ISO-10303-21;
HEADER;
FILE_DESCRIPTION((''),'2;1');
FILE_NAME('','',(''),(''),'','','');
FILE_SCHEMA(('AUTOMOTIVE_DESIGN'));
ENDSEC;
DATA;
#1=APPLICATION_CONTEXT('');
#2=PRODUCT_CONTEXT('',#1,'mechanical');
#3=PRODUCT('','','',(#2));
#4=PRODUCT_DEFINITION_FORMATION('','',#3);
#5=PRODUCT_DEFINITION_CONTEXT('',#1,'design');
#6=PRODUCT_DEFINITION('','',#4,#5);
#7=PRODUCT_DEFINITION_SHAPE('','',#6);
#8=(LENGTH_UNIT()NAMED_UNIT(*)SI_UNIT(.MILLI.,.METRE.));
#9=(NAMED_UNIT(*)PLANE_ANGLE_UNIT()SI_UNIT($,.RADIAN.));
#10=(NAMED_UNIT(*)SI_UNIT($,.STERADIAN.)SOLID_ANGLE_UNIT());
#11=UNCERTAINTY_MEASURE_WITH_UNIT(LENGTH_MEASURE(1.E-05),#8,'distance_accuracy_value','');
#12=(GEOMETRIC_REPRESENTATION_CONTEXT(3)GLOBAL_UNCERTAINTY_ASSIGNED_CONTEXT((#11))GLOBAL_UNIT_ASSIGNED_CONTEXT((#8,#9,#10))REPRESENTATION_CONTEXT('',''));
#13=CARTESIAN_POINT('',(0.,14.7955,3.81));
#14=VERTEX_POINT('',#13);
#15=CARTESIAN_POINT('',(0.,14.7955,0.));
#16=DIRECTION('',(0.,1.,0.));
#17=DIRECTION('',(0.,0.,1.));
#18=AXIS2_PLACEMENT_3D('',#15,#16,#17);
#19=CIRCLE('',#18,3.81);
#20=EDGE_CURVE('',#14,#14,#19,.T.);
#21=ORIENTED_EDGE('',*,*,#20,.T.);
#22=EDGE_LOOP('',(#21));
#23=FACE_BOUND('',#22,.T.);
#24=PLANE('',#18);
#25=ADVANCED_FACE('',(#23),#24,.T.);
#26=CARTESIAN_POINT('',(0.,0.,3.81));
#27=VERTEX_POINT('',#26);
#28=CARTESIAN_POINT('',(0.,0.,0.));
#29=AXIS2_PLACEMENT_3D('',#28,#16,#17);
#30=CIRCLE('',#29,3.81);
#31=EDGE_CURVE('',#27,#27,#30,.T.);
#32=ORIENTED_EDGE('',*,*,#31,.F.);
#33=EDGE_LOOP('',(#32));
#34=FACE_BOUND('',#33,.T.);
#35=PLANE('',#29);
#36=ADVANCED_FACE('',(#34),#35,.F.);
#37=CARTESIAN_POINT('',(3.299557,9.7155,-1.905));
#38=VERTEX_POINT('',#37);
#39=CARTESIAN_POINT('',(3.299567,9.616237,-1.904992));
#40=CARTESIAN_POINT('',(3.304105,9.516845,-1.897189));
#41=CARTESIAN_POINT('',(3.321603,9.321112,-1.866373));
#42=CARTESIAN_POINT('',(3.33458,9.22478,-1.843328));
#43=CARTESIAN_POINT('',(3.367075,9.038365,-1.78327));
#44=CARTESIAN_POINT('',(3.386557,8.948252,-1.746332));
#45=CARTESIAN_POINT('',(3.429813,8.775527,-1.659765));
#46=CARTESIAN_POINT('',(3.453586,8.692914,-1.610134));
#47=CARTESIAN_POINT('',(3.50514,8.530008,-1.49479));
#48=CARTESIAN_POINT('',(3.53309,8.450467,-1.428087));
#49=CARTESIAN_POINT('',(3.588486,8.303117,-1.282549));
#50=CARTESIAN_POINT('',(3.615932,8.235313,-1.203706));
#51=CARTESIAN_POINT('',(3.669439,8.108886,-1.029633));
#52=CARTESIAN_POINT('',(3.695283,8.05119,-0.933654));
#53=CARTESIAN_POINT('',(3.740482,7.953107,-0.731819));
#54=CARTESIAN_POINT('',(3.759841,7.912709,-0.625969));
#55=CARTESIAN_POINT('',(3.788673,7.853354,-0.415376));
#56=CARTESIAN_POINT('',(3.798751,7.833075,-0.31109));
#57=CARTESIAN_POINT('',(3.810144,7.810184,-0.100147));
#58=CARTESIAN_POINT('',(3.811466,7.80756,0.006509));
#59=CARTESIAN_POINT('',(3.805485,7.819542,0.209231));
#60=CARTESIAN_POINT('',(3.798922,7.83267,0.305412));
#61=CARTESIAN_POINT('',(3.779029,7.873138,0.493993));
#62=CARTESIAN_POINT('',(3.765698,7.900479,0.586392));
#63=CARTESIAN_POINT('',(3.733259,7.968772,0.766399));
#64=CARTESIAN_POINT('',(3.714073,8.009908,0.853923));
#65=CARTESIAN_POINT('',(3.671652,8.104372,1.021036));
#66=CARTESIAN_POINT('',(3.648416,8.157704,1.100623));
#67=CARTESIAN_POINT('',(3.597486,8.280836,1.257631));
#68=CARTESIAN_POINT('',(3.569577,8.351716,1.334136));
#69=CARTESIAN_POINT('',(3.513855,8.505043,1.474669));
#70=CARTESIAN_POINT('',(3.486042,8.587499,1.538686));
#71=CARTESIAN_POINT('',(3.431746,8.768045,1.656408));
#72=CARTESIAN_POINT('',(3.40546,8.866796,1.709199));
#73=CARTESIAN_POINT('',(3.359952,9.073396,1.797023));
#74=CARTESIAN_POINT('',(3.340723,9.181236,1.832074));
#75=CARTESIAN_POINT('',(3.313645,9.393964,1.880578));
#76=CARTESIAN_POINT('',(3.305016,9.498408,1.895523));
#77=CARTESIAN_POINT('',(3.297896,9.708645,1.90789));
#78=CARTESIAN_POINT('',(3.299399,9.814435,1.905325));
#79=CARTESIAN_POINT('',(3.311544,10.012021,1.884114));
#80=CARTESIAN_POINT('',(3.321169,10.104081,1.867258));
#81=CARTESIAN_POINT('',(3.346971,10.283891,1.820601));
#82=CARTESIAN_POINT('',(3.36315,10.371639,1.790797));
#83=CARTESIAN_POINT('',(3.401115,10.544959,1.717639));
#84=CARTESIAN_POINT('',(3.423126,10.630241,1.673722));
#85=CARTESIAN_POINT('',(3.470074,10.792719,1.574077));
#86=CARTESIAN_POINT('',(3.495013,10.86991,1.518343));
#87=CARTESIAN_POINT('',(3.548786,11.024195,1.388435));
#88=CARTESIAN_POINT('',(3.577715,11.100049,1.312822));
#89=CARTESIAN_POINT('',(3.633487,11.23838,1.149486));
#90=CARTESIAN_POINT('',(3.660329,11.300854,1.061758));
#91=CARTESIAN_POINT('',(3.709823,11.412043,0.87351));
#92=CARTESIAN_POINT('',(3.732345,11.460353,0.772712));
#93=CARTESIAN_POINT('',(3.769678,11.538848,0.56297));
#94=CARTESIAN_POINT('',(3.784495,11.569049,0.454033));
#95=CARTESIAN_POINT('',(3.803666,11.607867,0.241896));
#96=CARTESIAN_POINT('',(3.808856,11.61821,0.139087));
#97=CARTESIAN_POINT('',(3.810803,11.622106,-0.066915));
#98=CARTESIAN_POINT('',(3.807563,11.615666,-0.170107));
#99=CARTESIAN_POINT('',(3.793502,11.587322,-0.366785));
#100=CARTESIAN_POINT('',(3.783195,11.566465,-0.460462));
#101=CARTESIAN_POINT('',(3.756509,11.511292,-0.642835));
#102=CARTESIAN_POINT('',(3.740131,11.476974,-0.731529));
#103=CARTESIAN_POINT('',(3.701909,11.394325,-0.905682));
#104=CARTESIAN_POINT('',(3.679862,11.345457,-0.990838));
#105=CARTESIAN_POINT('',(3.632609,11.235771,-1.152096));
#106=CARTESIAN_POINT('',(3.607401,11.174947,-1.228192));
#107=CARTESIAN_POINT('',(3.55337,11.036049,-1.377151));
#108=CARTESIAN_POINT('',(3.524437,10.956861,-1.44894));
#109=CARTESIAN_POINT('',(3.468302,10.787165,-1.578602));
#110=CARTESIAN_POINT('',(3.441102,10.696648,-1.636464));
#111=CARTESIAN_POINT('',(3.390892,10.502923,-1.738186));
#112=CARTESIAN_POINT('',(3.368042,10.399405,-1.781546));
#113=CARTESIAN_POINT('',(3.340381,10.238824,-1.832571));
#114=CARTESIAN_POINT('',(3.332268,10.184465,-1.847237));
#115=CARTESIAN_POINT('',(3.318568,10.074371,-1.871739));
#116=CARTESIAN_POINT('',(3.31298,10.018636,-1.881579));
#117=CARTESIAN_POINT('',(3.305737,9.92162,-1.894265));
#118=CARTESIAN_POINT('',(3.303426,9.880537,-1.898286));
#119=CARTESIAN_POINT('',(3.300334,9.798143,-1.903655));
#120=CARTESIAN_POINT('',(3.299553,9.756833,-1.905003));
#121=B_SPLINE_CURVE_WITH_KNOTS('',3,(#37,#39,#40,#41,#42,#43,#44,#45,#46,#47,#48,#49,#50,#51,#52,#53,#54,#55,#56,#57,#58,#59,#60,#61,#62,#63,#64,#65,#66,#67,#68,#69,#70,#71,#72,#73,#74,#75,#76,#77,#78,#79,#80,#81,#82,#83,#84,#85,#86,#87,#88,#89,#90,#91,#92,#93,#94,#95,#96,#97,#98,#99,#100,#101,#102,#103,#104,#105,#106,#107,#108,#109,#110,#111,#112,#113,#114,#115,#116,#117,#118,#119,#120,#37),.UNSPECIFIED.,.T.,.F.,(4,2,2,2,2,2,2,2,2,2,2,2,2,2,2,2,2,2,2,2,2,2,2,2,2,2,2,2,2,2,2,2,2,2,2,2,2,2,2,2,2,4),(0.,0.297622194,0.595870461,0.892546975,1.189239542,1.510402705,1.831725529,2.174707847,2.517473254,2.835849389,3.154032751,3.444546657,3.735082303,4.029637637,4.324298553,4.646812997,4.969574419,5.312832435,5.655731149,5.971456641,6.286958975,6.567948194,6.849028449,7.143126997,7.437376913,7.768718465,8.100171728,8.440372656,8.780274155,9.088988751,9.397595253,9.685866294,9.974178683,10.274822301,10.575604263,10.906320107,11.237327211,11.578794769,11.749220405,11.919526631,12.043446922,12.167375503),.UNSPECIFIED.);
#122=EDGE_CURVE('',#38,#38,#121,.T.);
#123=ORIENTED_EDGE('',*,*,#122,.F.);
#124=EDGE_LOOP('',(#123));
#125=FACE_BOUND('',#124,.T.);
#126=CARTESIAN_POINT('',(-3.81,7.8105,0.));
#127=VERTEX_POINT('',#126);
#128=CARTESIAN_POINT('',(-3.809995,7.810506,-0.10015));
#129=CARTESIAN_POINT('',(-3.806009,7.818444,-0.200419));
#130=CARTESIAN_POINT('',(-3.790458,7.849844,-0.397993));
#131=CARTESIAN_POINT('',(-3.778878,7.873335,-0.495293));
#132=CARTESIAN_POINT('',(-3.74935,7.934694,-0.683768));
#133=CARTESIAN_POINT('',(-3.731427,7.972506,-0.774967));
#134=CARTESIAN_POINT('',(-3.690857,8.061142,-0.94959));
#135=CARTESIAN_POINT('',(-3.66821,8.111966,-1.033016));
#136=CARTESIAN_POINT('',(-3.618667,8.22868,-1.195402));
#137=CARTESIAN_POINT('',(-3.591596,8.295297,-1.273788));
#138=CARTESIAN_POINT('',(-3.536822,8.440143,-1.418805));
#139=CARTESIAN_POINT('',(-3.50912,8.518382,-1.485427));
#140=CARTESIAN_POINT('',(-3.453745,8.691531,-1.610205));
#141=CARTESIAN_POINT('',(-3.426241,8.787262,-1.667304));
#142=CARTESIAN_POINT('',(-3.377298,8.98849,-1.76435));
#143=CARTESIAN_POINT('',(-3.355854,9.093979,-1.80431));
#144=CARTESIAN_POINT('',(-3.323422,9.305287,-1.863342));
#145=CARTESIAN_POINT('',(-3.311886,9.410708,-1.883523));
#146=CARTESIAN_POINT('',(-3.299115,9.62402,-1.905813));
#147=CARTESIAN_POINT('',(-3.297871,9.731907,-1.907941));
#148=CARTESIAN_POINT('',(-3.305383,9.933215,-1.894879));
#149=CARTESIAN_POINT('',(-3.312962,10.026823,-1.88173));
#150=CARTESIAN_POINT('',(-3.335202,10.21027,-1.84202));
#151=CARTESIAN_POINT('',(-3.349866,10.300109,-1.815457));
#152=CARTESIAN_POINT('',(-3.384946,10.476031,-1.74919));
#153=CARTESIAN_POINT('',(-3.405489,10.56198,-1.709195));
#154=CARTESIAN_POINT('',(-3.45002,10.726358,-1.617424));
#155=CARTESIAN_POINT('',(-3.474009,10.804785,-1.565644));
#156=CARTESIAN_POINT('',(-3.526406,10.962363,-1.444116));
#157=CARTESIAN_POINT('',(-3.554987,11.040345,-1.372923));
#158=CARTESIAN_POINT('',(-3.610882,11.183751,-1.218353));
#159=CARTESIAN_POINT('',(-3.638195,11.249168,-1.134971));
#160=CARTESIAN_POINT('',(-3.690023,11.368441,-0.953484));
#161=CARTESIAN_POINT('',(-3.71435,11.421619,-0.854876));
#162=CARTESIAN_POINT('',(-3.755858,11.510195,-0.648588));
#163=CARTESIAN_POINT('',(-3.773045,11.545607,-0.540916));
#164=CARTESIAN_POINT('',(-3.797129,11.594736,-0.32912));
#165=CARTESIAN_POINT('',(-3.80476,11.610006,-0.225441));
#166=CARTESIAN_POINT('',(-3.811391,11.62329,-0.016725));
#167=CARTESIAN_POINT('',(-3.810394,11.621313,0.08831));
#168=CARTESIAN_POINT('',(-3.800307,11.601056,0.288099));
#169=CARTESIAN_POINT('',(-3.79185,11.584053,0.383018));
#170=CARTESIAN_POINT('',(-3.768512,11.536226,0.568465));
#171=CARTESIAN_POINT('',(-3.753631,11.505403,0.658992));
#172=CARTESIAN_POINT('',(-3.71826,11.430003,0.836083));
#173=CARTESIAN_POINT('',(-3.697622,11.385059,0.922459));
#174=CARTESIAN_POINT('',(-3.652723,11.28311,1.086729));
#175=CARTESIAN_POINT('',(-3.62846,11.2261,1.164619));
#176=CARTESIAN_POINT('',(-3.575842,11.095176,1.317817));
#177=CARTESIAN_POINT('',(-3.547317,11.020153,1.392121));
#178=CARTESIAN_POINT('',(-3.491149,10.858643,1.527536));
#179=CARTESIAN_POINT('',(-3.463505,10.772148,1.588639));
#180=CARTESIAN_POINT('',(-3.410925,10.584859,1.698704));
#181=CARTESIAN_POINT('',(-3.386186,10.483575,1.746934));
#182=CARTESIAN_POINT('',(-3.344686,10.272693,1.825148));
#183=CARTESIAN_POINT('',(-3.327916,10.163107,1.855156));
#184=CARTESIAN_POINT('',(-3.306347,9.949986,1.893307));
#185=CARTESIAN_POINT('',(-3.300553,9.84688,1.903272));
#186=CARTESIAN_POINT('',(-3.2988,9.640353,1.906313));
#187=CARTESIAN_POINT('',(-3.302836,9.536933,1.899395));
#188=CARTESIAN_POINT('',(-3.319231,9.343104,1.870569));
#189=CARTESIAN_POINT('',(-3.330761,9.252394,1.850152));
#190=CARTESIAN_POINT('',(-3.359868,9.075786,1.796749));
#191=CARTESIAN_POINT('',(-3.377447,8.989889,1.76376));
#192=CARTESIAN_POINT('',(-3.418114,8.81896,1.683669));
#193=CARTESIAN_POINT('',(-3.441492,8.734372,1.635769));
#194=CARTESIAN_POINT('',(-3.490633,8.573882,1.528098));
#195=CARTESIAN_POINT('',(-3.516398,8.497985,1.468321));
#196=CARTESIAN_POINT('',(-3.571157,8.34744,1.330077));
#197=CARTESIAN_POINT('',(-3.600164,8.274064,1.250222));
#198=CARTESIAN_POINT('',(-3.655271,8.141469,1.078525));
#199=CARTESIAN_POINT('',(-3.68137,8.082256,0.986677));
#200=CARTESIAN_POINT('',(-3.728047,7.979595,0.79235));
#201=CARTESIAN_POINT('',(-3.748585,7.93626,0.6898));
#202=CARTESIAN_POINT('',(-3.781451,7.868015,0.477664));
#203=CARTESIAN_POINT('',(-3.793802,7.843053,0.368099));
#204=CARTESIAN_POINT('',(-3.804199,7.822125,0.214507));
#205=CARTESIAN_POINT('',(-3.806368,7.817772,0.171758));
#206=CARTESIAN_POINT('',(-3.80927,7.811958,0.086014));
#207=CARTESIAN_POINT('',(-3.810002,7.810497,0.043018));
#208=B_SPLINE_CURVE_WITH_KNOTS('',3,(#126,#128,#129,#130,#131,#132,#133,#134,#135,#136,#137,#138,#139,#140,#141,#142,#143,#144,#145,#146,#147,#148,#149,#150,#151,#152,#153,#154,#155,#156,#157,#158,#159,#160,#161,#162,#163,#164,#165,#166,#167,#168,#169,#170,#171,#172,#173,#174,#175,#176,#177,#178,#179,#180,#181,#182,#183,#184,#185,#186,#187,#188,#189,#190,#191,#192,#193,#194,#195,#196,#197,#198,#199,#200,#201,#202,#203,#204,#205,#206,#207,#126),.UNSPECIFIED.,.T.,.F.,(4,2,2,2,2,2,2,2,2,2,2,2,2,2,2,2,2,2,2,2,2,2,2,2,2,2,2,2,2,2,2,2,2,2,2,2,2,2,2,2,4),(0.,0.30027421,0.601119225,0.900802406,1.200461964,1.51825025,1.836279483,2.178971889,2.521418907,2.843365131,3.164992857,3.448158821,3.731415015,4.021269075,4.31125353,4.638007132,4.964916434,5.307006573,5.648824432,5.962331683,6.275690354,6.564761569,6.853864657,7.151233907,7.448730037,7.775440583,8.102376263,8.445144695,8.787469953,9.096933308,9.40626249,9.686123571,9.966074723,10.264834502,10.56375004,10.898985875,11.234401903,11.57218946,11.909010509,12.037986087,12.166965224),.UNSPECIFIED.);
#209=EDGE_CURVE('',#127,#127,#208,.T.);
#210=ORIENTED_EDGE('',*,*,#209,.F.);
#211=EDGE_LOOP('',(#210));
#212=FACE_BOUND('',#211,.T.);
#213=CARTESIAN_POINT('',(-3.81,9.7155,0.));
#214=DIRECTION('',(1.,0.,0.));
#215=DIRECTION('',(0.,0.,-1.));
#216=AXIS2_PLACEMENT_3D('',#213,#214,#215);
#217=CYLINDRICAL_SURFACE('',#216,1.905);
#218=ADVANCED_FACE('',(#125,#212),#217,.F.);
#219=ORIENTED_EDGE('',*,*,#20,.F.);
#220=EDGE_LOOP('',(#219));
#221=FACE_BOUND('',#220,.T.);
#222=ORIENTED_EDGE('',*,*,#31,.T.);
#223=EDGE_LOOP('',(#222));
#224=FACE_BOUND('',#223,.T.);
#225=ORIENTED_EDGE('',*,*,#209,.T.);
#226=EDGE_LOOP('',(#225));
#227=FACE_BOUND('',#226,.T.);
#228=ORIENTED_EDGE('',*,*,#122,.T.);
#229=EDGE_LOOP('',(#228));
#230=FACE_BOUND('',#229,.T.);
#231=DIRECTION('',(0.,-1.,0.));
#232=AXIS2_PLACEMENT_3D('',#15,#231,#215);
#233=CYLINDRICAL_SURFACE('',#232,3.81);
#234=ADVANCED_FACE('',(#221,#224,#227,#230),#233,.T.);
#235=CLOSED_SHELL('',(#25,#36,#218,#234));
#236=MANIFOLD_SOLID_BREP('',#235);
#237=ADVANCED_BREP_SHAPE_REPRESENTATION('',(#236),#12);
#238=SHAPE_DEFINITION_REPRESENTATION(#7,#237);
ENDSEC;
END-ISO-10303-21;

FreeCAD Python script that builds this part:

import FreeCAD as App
import Part
import Sketcher
Q = App.Units.Quantity

doc = App.newDocument("Part")
body = doc.addObject("PartDesign::Body", "Body")

# Sketch on XZ plane
sketch1 = body.newObject("Sketcher::SketchObject", "Sketch")
sketch1.AttachmentSupport = (doc.getObject("XZ_Plane"), [""])
sketch1.MapMode = "FlatFace"
sketch1.addGeometry(Part.Circle(App.Vector(0, 0, 0), App.Vector(0, 0, 1), 3.81), False)
sketch1.addConstraint(Sketcher.Constraint("Coincident", 0, 3, -1, 1))
sketch1.addConstraint(Sketcher.Constraint("Diameter", 0, Q("0.3 in")))
pad1 = body.newObject("PartDesign::Pad", "Pad")
pad1.Profile = sketch1
pad1.Length = Q("0.5825 in")
pad1.Reversed = True

# Sketch on YZ plane
sketch2 = body.newObject("Sketcher::SketchObject", "Sketch001")
sketch2.AttachmentSupport = (doc.getObject("YZ_Plane"), [""])
sketch2.MapMode = "FlatFace"
sketch2.AttachmentOffset = App.Placement(App.Vector(0, 0, 0.15 * 25.4), App.Rotation())
sketch2.addGeometry(Part.Circle(App.Vector(9.7155, 0, 0), App.Vector(0, 0, 1), 1.905), False)
sketch2.addConstraint(Sketcher.Constraint("PointOnObject", 0, 3, -1))
sketch2.addConstraint(Sketcher.Constraint("Diameter", 0, Q("0.15 in")))
sketch2.addConstraint(Sketcher.Constraint("DistanceX", -1, 1, 0, 3, Q("0.3825 in")))
pocket1 = body.newObject("PartDesign::Pocket", "Pocket")
pocket1.Profile = sketch2
pocket1.Type = "ThroughAll"

doc.recompute()
